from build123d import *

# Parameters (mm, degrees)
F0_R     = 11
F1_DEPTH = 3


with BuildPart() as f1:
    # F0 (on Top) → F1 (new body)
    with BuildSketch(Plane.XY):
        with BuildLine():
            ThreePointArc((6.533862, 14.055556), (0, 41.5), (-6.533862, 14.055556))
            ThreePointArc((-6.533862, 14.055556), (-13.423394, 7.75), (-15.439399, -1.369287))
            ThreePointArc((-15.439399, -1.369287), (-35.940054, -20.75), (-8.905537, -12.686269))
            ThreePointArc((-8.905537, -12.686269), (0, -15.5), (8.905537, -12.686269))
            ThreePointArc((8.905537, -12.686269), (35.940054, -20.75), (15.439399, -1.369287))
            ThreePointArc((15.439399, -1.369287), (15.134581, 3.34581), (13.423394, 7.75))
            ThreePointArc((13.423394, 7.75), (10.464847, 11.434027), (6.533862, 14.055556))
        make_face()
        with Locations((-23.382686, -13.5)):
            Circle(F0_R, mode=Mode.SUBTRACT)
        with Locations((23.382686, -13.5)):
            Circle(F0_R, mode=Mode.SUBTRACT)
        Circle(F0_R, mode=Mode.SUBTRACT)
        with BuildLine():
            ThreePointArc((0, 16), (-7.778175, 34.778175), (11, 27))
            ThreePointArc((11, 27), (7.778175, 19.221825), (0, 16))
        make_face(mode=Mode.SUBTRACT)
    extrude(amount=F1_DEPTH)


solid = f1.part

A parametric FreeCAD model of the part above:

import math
import FreeCAD as App
import Part
import Sketcher

V = App.Vector

doc = App.newDocument("Part")
params = doc.addObject("Spreadsheet::Sheet", "Params")
for row, (alias, value) in enumerate([
    ("sketch1_diameter", "22 mm"),
    ("sketch1_radius", "14.5 mm"),
    ("sketch1_radius2", "15.499999 mm"),
    ("sketch1_radius3", "15.500002 mm"),
    ("pad1_length", "3 mm"),
], start=1):
    params.set(f"A{row}", alias)
    params.set(f"B{row}", "=" + value)
    params.setAlias(f"B{row}", alias)

body = doc.addObject("PartDesign::Body", "Body")

# Sketch on XY plane
sketch1 = body.newObject("Sketcher::SketchObject", "Sketch")
sketch1.AttachmentSupport = (doc.getObject("XY_Plane"), [""])
sketch1.MapMode = "FlatFace"
sketch1.addGeometry([
    Part.ArcOfCircle(Part.Circle(V(0, 27, 0), V(0, 0, 1), 14), math.radians(-63), math.radians(243)),  # 0
    Part.ArcOfCircle(Part.Circle(V(0, 0, 0), V(0, 0, 1), 15), math.radians(115), math.radians(185)),  # 1
    Part.ArcOfCircle(Part.Circle(V(-23, -13, 0), V(0, 0, 1), 14), math.radians(57), math.radians(363)),  # 2
    Part.ArcOfCircle(Part.Circle(V(0, 0, 0), V(0, 0, 1), 16), math.radians(-125), math.radians(-55)),  # 3
    Part.ArcOfCircle(Part.Circle(V(23, -13, 0), V(0, 0, 1), 14), math.radians(177), math.radians(483)),  # 4
    Part.ArcOfCircle(Part.Circle(V(0, 0, 0), V(0, 0, 1), 16), math.radians(-5), math.radians(30)),  # 5
    Part.ArcOfCircle(Part.Circle(V(0, 0, 0), V(0, 0, 1), 16), math.radians(30), math.radians(65)),  # 6
    Part.Circle(V(-23, -14, 0), V(0, 0, 1), 11),  # 7
    Part.Circle(V(0, 0, 0), V(0, 0, 1), 11),  # 8
    Part.Circle(V(23, -14, 0), V(0, 0, 1), 11),  # 9
    Part.ArcOfCircle(Part.Circle(V(0, 27, 0), V(0, 0, 1), 11), math.radians(-90), math.radians(0)),  # 10
    Part.ArcOfCircle(Part.Circle(V(0, 27, 0), V(0, 0, 1), 11), math.radians(0), math.radians(270)),  # 11
], False)
sketch1.addConstraint([
    Sketcher.Constraint("Coincident", 0, 2, 1, 1),
    Sketcher.Constraint("Coincident", 1, 2, 2, 1),
    Sketcher.Constraint("Coincident", 2, 2, 3, 1),
    Sketcher.Constraint("Coincident", 3, 2, 4, 1),
    Sketcher.Constraint("Coincident", 4, 2, 5, 1),
    Sketcher.Constraint("Tangent", 5, 2, 6, 1),
    Sketcher.Constraint("Coincident", 6, 2, 0, 1),
    Sketcher.Constraint("Tangent", 10, 1, 11, 2),
    Sketcher.Constraint("Coincident", 11, 1, 10, 2),
    Sketcher.Constraint("Coincident", 1, 3, -1, 1),
    Sketcher.Constraint("Coincident", 3, 3, -1, 1),
    Sketcher.Constraint("Coincident", 5, 3, -1, 1),
    Sketcher.Constraint("Coincident", 8, 3, -1, 1),
    Sketcher.Constraint("Coincident", 7, 3, 2, 3),
    Sketcher.Constraint("Coincident", 9, 3, 4, 3),
    Sketcher.Constraint("Coincident", 10, 3, 0, 3),
    Sketcher.Constraint("Equal", 0, 2),
    Sketcher.Constraint("Equal", 2, 4),
    Sketcher.Constraint("Equal", 5, 6),
    Sketcher.Constraint("Equal", 7, 8),
    Sketcher.Constraint("Equal", 8, 9),
    Sketcher.Constraint("Equal", 9, 10),
    Sketcher.Constraint("Symmetric", 2, 3, 4, 3, -2),
    Sketcher.Constraint("Symmetric", 0, 2, 6, 2, -2),
    Sketcher.Constraint("PointOnObject", 10, 1, -2),
    Sketcher.Constraint("Horizontal", 10, 3, 11, 1),
    Sketcher.Constraint("Diameter", 7, 22.0),
    Sketcher.Constraint("Radius", 0, 14.5),
    Sketcher.Constraint("Radius", 1, 15.499999),
    Sketcher.Constraint("Radius", 3, 15.500002),
    Sketcher.Constraint("DistanceY", -1, 1, 0, 3, 27.0),
    Sketcher.Constraint("DistanceY", 2, 3, -1, 1, 13.5),
    Sketcher.Constraint("DistanceY", -1, 1, 5, 2, 7.75),
    Sketcher.Constraint("DistanceX", 1, 2, -1, 1, 15.439399),
])
sketch1.setExpression("Constraints[26]", "Params.sketch1_diameter")
sketch1.setExpression("Constraints[27]", "Params.sketch1_radius")
sketch1.setExpression("Constraints[28]", "Params.sketch1_radius2")
sketch1.setExpression("Constraints[29]", "Params.sketch1_radius3")
pad1 = body.newObject("PartDesign::Pad", "Pad")
pad1.Profile = sketch1
pad1.setExpression("Length", "Params.pad1_length")

doc.recompute()
